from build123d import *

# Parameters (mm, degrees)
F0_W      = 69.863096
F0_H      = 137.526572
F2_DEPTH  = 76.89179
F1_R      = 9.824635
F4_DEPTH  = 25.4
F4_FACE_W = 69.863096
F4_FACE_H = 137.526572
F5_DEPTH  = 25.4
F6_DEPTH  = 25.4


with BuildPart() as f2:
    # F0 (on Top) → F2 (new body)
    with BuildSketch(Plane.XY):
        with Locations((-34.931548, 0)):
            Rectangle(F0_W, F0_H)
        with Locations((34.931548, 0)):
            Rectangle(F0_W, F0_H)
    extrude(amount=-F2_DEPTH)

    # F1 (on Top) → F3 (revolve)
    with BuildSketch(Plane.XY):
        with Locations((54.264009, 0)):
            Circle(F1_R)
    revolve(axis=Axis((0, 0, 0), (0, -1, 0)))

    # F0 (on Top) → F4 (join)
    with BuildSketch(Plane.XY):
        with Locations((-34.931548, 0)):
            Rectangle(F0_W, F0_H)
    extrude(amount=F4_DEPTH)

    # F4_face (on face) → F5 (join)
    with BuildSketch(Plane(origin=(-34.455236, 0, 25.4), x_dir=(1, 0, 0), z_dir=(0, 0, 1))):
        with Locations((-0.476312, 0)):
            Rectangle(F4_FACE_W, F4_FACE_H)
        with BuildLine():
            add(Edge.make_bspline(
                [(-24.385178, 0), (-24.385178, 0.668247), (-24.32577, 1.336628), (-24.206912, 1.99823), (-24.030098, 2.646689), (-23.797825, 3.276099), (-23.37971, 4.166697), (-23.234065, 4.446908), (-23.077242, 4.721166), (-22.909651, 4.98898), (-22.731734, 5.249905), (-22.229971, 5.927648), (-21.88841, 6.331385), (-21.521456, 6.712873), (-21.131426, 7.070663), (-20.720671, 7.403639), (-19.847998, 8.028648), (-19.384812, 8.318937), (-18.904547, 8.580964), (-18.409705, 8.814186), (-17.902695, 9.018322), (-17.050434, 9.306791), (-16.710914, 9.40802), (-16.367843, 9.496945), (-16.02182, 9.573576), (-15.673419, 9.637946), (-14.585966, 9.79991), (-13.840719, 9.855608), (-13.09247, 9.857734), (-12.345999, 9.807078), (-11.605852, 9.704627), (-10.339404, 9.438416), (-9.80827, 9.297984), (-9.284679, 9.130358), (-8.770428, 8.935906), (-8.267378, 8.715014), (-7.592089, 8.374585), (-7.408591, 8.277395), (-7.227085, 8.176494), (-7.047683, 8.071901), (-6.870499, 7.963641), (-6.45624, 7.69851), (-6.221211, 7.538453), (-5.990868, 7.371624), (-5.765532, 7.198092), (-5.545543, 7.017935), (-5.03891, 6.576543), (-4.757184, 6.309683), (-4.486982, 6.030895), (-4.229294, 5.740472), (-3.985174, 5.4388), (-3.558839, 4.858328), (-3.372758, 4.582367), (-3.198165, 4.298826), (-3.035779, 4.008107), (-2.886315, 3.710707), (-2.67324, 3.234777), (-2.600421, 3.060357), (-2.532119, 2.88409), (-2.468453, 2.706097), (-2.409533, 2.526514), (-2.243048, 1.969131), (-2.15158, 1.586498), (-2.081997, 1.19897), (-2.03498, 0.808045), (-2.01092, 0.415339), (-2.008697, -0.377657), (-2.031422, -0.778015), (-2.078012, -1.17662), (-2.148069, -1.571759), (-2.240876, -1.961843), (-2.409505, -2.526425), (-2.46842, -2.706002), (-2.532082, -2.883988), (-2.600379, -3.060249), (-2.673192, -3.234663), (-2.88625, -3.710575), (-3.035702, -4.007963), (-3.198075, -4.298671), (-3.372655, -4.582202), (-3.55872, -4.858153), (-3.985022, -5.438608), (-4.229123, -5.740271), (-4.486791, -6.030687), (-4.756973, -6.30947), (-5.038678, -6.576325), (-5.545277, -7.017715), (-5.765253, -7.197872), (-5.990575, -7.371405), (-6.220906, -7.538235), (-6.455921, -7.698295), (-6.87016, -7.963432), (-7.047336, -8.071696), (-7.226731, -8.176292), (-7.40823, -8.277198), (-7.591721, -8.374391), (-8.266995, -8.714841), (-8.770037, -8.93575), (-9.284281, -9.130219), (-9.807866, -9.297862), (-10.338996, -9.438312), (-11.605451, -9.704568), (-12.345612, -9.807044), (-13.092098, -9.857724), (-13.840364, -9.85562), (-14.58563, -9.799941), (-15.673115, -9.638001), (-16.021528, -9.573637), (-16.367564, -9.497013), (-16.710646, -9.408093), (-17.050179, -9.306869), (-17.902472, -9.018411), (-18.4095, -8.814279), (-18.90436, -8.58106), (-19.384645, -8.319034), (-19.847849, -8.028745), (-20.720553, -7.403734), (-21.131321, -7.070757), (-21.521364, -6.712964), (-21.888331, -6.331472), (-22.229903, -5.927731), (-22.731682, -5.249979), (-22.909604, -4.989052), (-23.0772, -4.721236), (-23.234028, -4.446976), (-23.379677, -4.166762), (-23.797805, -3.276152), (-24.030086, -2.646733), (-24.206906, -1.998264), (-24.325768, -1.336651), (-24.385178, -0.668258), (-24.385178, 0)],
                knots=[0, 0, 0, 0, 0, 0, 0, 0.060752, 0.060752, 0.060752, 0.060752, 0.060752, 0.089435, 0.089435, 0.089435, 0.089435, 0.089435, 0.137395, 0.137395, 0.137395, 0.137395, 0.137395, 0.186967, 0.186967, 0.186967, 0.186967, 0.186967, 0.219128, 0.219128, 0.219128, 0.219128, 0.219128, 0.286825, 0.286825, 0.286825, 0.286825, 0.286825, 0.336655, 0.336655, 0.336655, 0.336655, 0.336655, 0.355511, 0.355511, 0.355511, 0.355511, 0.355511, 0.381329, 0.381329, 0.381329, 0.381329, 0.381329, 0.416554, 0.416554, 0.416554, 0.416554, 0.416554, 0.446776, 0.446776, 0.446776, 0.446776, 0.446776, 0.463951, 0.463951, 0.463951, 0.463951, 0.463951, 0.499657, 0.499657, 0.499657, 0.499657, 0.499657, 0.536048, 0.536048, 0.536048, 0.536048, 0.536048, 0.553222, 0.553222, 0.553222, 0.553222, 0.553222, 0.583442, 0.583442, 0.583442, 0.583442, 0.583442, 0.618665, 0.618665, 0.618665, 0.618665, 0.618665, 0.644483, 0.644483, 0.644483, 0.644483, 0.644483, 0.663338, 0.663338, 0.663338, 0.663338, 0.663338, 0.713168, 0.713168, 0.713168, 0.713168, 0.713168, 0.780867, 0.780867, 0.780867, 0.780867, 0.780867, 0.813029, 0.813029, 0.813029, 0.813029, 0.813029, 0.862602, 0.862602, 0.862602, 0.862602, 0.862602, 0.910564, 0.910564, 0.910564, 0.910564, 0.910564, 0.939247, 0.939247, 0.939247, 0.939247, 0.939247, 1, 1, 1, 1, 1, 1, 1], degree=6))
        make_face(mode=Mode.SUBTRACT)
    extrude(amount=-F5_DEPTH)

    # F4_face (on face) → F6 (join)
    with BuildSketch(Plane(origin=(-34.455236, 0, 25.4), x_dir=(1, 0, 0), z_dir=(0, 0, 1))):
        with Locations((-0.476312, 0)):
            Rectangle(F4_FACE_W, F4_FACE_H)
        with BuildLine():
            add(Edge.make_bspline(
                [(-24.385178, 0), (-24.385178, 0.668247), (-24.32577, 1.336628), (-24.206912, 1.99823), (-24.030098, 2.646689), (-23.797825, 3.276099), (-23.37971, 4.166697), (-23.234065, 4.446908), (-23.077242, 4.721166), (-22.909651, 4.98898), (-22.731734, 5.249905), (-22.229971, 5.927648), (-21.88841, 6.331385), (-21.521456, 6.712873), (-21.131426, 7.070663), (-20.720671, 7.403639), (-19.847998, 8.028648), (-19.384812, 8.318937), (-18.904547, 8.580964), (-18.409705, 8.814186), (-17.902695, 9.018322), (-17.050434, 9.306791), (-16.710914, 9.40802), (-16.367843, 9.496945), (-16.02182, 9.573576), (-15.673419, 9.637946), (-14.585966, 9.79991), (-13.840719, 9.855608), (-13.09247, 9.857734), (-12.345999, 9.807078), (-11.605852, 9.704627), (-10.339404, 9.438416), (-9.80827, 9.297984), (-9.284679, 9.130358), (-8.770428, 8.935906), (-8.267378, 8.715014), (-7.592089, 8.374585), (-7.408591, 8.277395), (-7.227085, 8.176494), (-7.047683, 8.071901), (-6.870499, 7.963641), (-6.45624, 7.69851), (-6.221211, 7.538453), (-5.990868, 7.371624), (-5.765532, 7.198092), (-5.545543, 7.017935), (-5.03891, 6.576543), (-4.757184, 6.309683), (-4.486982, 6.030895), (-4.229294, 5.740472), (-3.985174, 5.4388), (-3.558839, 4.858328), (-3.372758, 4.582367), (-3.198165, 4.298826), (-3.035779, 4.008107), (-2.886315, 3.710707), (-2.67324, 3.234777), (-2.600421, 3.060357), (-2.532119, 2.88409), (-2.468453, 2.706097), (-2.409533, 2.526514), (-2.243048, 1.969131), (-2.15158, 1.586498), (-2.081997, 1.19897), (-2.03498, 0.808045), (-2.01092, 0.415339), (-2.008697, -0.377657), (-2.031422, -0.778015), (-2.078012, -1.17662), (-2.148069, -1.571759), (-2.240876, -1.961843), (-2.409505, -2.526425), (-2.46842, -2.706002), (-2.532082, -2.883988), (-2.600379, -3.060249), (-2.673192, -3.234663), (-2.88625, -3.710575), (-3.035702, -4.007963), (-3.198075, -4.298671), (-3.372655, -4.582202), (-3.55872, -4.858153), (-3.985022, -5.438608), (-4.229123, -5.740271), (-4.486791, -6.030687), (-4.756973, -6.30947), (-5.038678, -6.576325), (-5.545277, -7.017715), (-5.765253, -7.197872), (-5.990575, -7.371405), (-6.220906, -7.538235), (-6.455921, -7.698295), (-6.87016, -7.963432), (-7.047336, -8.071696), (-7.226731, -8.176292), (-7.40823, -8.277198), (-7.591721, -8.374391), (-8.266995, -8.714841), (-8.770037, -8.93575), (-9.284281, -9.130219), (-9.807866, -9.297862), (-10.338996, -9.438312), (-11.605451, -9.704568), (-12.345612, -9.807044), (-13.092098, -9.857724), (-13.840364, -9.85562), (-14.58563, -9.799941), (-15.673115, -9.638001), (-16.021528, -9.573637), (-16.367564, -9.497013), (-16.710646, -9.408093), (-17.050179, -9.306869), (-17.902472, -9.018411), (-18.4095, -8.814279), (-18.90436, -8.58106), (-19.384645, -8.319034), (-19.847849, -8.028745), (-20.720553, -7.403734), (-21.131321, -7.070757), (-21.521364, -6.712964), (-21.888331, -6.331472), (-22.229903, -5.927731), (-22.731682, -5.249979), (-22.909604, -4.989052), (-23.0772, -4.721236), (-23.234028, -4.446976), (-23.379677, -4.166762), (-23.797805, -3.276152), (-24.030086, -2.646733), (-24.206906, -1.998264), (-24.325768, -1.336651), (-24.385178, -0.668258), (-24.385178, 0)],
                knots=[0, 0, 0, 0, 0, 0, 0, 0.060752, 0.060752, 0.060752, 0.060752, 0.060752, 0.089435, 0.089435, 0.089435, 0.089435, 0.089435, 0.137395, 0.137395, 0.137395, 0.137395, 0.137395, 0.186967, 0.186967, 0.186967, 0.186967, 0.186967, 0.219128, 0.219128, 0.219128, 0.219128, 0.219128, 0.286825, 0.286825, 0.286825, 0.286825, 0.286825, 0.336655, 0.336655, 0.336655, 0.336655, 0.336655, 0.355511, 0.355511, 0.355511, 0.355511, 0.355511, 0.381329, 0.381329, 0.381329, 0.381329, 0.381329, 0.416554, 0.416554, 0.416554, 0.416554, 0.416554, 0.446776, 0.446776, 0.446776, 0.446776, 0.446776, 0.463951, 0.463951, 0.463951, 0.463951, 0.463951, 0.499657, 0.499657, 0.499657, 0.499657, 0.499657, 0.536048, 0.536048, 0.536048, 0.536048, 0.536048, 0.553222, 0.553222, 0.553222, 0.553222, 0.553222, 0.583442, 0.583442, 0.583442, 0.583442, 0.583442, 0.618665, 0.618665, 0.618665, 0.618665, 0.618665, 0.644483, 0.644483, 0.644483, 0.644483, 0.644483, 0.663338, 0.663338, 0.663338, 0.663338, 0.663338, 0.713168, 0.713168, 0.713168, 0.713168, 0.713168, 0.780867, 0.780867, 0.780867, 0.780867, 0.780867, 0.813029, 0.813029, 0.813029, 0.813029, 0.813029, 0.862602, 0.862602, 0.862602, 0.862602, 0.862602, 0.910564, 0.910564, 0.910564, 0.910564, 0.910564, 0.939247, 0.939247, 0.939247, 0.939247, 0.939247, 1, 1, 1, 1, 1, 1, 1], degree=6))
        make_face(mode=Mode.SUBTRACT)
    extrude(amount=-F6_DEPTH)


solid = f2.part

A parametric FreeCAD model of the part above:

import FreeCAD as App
import Part
import Sketcher

V = App.Vector
Q = App.Units.Quantity


def add_polygon(sketch, points):
    """Adds a closed chain of lines whose ends are joined by coincident constraints."""
    first, n = sketch.GeometryCount, len(points)
    for a, b in zip(points, points[1:] + points[:1]):
        sketch.addGeometry(Part.LineSegment(App.Vector(*a, 0), App.Vector(*b, 0)), False)
    for i in range(n):
        sketch.addConstraint(Sketcher.Constraint("Coincident", first + i, 2, first + (i + 1) % n, 1))

doc = App.newDocument("Part")
body = doc.addObject("PartDesign::Body", "Body")

# Sketch on XY plane
sketch1 = body.newObject("Sketcher::SketchObject", "Sketch")
sketch1.AttachmentSupport = (doc.getObject("XY_Plane"), [""])
sketch1.MapMode = "FlatFace"
add_polygon(sketch1, [(-69.863096, 68.763286), (-69.863096, -68.763286), (69.863096, -68.763286), (69.863096, 68.763286)])  # lines 0-3
sketch1.addConstraint([
    Sketcher.Constraint("Vertical", 0),
    Sketcher.Constraint("Horizontal", 1),
    Sketcher.Constraint("Vertical", 2),
    Sketcher.Constraint("Horizontal", 3),
    Sketcher.Constraint("Symmetric", 0, 2, 2, 2, -1, 1),
    Sketcher.Constraint("DistanceX", 1, 1, 1, 2, 139.726192),
    Sketcher.Constraint("DistanceY", 0, 2, 0, 1, 137.526572),
])
pad1 = body.newObject("PartDesign::Pad", "Pad")
pad1.Profile = sketch1
pad1.Length = 76.89179
pad1.Reversed = True

# Sketch on XY plane
sketch2 = body.newObject("Sketcher::SketchObject", "Sketch001")
sketch2.AttachmentSupport = (doc.getObject("XY_Plane"), [""])
sketch2.MapMode = "FlatFace"
sketch2.addGeometry(Part.Circle(V(54.264009, 0, 0), V(0, 0, 1), 9.824635), False)
sketch2.addConstraint([
    Sketcher.Constraint("PointOnObject", 0, 3, -1),
    Sketcher.Constraint("Diameter", 0, 19.64927),
    Sketcher.Constraint("DistanceX", -1, 1, 0, 3, 54.264009),
])
revolution = body.newObject("PartDesign::Revolution", "Revolution")
revolution.Profile = sketch2
revolution.ReferenceAxis = (sketch2, ["V_Axis"])
revolution.Angle = 360

# Sketch on XY plane
sketch3 = body.newObject("Sketcher::SketchObject", "Sketch002")
sketch3.AttachmentSupport = (doc.getObject("XY_Plane"), [""])
sketch3.MapMode = "FlatFace"
add_polygon(sketch3, [(-69.863096, 68.763286), (-69.863096, -68.763286), (0, -68.763286), (0, 68.763286)])  # lines 0-3
sketch3.addConstraint([
    Sketcher.Constraint("Vertical", 0),
    Sketcher.Constraint("Horizontal", 1),
    Sketcher.Constraint("Vertical", 2),
    Sketcher.Constraint("Horizontal", 3),
    Sketcher.Constraint("Symmetric", 1, 2, 2, 2, -1, 1),
    Sketcher.Constraint("DistanceY", 0, 2, 0, 1, 137.526572),
    Sketcher.Constraint("DistanceX", 1, 1, 1, 2, 69.863096),
])
pad2 = body.newObject("PartDesign::Pad", "Pad001")
pad2.Profile = sketch3
pad2.Length = Q("1 in")

# Sketch on XY plane
sketch4 = body.newObject("Sketcher::SketchObject", "Sketch003")
sketch4.AttachmentSupport = (doc.getObject("XY_Plane"), [""])
sketch4.MapMode = "FlatFace"
sketch4.AttachmentOffset = App.Placement(V(0, 0, 1 * 25.4), App.Rotation())
add_polygon(sketch4, [(-69.863096, 68.763286), (-69.863096, -68.763286), (0, -68.763286), (0, 68.763286)])  # lines 0-3
sketch4.addGeometry(Part.BSplineCurve([V(-58.840414, 0, 0), V(-58.840414, 0.668247, 0), V(-58.781006, 1.336628, 0), V(-58.662148, 1.99823, 0), V(-58.485334, 2.646689, 0), V(-58.253061, 3.276099, 0), V(-57.834946, 4.166697, 0), V(-57.689301, 4.446908, 0), V(-57.532478, 4.721166, 0), V(-57.364887, 4.98898, 0), V(-57.18697, 5.249905, 0), V(-56.685207, 5.927648, 0), V(-56.343646, 6.331385, 0), V(-55.976692, 6.712873, 0), V(-55.586662, 7.070663, 0), V(-55.175907, 7.403639, 0), V(-54.303234, 8.028648, 0), V(-53.840048, 8.318937, 0), V(-53.359783, 8.580964, 0), V(-52.864941, 8.814186, 0), V(-52.357931, 9.018322, 0), V(-51.50567, 9.306791, 0), V(-51.16615, 9.40802, 0), V(-50.823079, 9.496945, 0), V(-50.477056, 9.573576, 0), V(-50.128655, 9.637946, 0), V(-49.041202, 9.79991, 0), V(-48.295955, 9.855608, 0), V(-47.547706, 9.857734, 0), V(-46.801235, 9.807078, 0), V(-46.061088, 9.704627, 0), V(-44.79464, 9.438416, 0), V(-44.263506, 9.297984, 0), V(-43.739915, 9.130358, 0), V(-43.225664, 8.935906, 0), V(-42.722614, 8.715014, 0), V(-42.047325, 8.374585, 0), V(-41.863827, 8.277395, 0), V(-41.682321, 8.176494, 0), V(-41.502919, 8.071901, 0), V(-41.325735, 7.963641, 0), V(-40.911476, 7.69851, 0), V(-40.676447, 7.538453, 0), V(-40.446104, 7.371624, 0), V(-40.220768, 7.198092, 0), V(-40.000779, 7.017935, 0), V(-39.494146, 6.576543, 0), V(-39.21242, 6.309683, 0), V(-38.942218, 6.030895, 0), V(-38.68453, 5.740472, 0), V(-38.44041, 5.4388, 0), V(-38.014075, 4.858328, 0), V(-37.827994, 4.582367, 0), V(-37.653401, 4.298826, 0), V(-37.491015, 4.008107, 0), V(-37.341551, 3.710707, 0), V(-37.128476, 3.234777, 0), V(-37.055657, 3.060357, 0), V(-36.987355, 2.88409, 0), V(-36.923689, 2.706097, 0), V(-36.864769, 2.526514, 0), V(-36.698284, 1.969131, 0), V(-36.606816, 1.586498, 0), V(-36.537233, 1.19897, 0), V(-36.490216, 0.808045, 0), V(-36.466156, 0.415339, 0), V(-36.463933, -0.377657, 0), V(-36.486658, -0.778015, 0), V(-36.533248, -1.17662, 0), V(-36.603305, -1.571759, 0), V(-36.696112, -1.961843, 0), V(-36.864741, -2.526425, 0), V(-36.923656, -2.706002, 0), V(-36.987318, -2.883988, 0), V(-37.055615, -3.060249, 0), V(-37.128428, -3.234663, 0), V(-37.341486, -3.710575, 0), V(-37.490938, -4.007963, 0), V(-37.653311, -4.298671, 0), V(-37.827891, -4.582202, 0), V(-38.013956, -4.858153, 0), V(-38.440258, -5.438608, 0), V(-38.684359, -5.740271, 0), V(-38.942027, -6.030687, 0), V(-39.212209, -6.30947, 0), V(-39.493914, -6.576325, 0), V(-40.000513, -7.017715, 0), V(-40.220489, -7.197872, 0), V(-40.445811, -7.371405, 0), V(-40.676142, -7.538235, 0), V(-40.911157, -7.698295, 0), V(-41.325396, -7.963432, 0), V(-41.502572, -8.071696, 0), V(-41.681967, -8.176292, 0), V(-41.863466, -8.277198, 0), V(-42.046957, -8.374391, 0), V(-42.722231, -8.714841, 0), V(-43.225273, -8.93575, 0), V(-43.739517, -9.130219, 0), V(-44.263102, -9.297862, 0), V(-44.794232, -9.438312, 0), V(-46.060687, -9.704568, 0), V(-46.800848, -9.807044, 0), V(-47.547334, -9.857724, 0), V(-48.2956, -9.85562, 0), V(-49.040866, -9.799941, 0), V(-50.128351, -9.638001, 0), V(-50.476764, -9.573637, 0), V(-50.8228, -9.497013, 0), V(-51.165882, -9.408093, 0), V(-51.505415, -9.306869, 0), V(-52.357708, -9.018411, 0), V(-52.864736, -8.814279, 0), V(-53.359596, -8.58106, 0), V(-53.839881, -8.319034, 0), V(-54.303085, -8.028745, 0), V(-55.175789, -7.403734, 0), V(-55.586557, -7.070757, 0), V(-55.9766, -6.712964, 0), V(-56.343567, -6.331472, 0), V(-56.685139, -5.927731, 0), V(-57.186918, -5.249979, 0), V(-57.36484, -4.989052, 0), V(-57.532436, -4.721236, 0), V(-57.689264, -4.446976, 0), V(-57.834913, -4.166762, 0), V(-58.253041, -3.276152, 0), V(-58.485322, -2.646733, 0), V(-58.662142, -1.998264, 0), V(-58.781004, -1.336651, 0), V(-58.840414, -0.668258, 0), V(-58.840414, 0, 0)], [7, 5, 5, 5, 5, 5, 5, 5, 5, 5, 5, 5, 5, 5, 5, 5, 5, 5, 5, 5, 5, 5, 5, 5, 5, 5, 7], [0, 0.060752, 0.089435, 0.137395, 0.186967, 0.219128, 0.286825, 0.336655, 0.355511, 0.381329, 0.416554, 0.446776, 0.463951, 0.499657, 0.536048, 0.553222, 0.583442, 0.618665, 0.644483, 0.663338, 0.713168, 0.780867, 0.813029, 0.862602, 0.910564, 0.939247, 1], False, 6, [1, 1, 1, 1, 1, 1, 1, 1, 1, 1, 1, 1, 1, 1, 1, 1, 1, 1, 1, 1, 1, 1, 1, 1, 1, 1, 1, 1, 1, 1, 1, 1, 1, 1, 1, 1, 1, 1, 1, 1, 1, 1, 1, 1, 1, 1, 1, 1, 1, 1, 1, 1, 1, 1, 1, 1, 1, 1, 1, 1, 1, 1, 1, 1, 1, 1, 1, 1, 1, 1, 1, 1, 1, 1, 1, 1, 1, 1, 1, 1, 1, 1, 1, 1, 1, 1, 1, 1, 1, 1, 1, 1, 1, 1, 1, 1, 1, 1, 1, 1, 1, 1, 1, 1, 1, 1, 1, 1, 1, 1, 1, 1, 1, 1, 1, 1, 1, 1, 1, 1, 1, 1, 1, 1, 1, 1, 1, 1, 1, 1, 1, 1], False), False)  # 4
sketch4.addConstraint([
    Sketcher.Constraint("Block", 4),
    Sketcher.Constraint("Vertical", 0),
    Sketcher.Constraint("Horizontal", 1),
    Sketcher.Constraint("Vertical", 2),
    Sketcher.Constraint("Horizontal", 3),
    Sketcher.Constraint("Symmetric", 1, 2, 2, 2, -1, 1),
    Sketcher.Constraint("DistanceY", 0, 2, 0, 1, 137.526572),
    Sketcher.Constraint("DistanceX", 1, 1, 1, 2, 69.863096),
])
pad3 = body.newObject("PartDesign::Pad", "Pad002")
pad3.Profile = sketch4
pad3.Length = Q("1 in")
pad3.Reversed = True

# Sketch on XY plane
sketch5 = body.newObject("Sketcher::SketchObject", "Sketch004")
sketch5.AttachmentSupport = (doc.getObject("XY_Plane"), [""])
sketch5.MapMode = "FlatFace"
sketch5.AttachmentOffset = App.Placement(V(0, 0, 1 * 25.4), App.Rotation())
add_polygon(sketch5, [(-69.863096, 68.763286), (-69.863096, -68.763286), (0, -68.763286), (0, 68.763286)])  # lines 0-3
sketch5.addGeometry(Part.BSplineCurve([V(-58.840414, 0, 0), V(-58.840414, 0.668247, 0), V(-58.781006, 1.336628, 0), V(-58.662148, 1.99823, 0), V(-58.485334, 2.646689, 0), V(-58.253061, 3.276099, 0), V(-57.834946, 4.166697, 0), V(-57.689301, 4.446908, 0), V(-57.532478, 4.721166, 0), V(-57.364887, 4.98898, 0), V(-57.18697, 5.249905, 0), V(-56.685207, 5.927648, 0), V(-56.343646, 6.331385, 0), V(-55.976692, 6.712873, 0), V(-55.586662, 7.070663, 0), V(-55.175907, 7.403639, 0), V(-54.303234, 8.028648, 0), V(-53.840048, 8.318937, 0), V(-53.359783, 8.580964, 0), V(-52.864941, 8.814186, 0), V(-52.357931, 9.018322, 0), V(-51.50567, 9.306791, 0), V(-51.16615, 9.40802, 0), V(-50.823079, 9.496945, 0), V(-50.477056, 9.573576, 0), V(-50.128655, 9.637946, 0), V(-49.041202, 9.79991, 0), V(-48.295955, 9.855608, 0), V(-47.547706, 9.857734, 0), V(-46.801235, 9.807078, 0), V(-46.061088, 9.704627, 0), V(-44.79464, 9.438416, 0), V(-44.263506, 9.297984, 0), V(-43.739915, 9.130358, 0), V(-43.225664, 8.935906, 0), V(-42.722614, 8.715014, 0), V(-42.047325, 8.374585, 0), V(-41.863827, 8.277395, 0), V(-41.682321, 8.176494, 0), V(-41.502919, 8.071901, 0), V(-41.325735, 7.963641, 0), V(-40.911476, 7.69851, 0), V(-40.676447, 7.538453, 0), V(-40.446104, 7.371624, 0), V(-40.220768, 7.198092, 0), V(-40.000779, 7.017935, 0), V(-39.494146, 6.576543, 0), V(-39.21242, 6.309683, 0), V(-38.942218, 6.030895, 0), V(-38.68453, 5.740472, 0), V(-38.44041, 5.4388, 0), V(-38.014075, 4.858328, 0), V(-37.827994, 4.582367, 0), V(-37.653401, 4.298826, 0), V(-37.491015, 4.008107, 0), V(-37.341551, 3.710707, 0), V(-37.128476, 3.234777, 0), V(-37.055657, 3.060357, 0), V(-36.987355, 2.88409, 0), V(-36.923689, 2.706097, 0), V(-36.864769, 2.526514, 0), V(-36.698284, 1.969131, 0), V(-36.606816, 1.586498, 0), V(-36.537233, 1.19897, 0), V(-36.490216, 0.808045, 0), V(-36.466156, 0.415339, 0), V(-36.463933, -0.377657, 0), V(-36.486658, -0.778015, 0), V(-36.533248, -1.17662, 0), V(-36.603305, -1.571759, 0), V(-36.696112, -1.961843, 0), V(-36.864741, -2.526425, 0), V(-36.923656, -2.706002, 0), V(-36.987318, -2.883988, 0), V(-37.055615, -3.060249, 0), V(-37.128428, -3.234663, 0), V(-37.341486, -3.710575, 0), V(-37.490938, -4.007963, 0), V(-37.653311, -4.298671, 0), V(-37.827891, -4.582202, 0), V(-38.013956, -4.858153, 0), V(-38.440258, -5.438608, 0), V(-38.684359, -5.740271, 0), V(-38.942027, -6.030687, 0), V(-39.212209, -6.30947, 0), V(-39.493914, -6.576325, 0), V(-40.000513, -7.017715, 0), V(-40.220489, -7.197872, 0), V(-40.445811, -7.371405, 0), V(-40.676142, -7.538235, 0), V(-40.911157, -7.698295, 0), V(-41.325396, -7.963432, 0), V(-41.502572, -8.071696, 0), V(-41.681967, -8.176292, 0), V(-41.863466, -8.277198, 0), V(-42.046957, -8.374391, 0), V(-42.722231, -8.714841, 0), V(-43.225273, -8.93575, 0), V(-43.739517, -9.130219, 0), V(-44.263102, -9.297862, 0), V(-44.794232, -9.438312, 0), V(-46.060687, -9.704568, 0), V(-46.800848, -9.807044, 0), V(-47.547334, -9.857724, 0), V(-48.2956, -9.85562, 0), V(-49.040866, -9.799941, 0), V(-50.128351, -9.638001, 0), V(-50.476764, -9.573637, 0), V(-50.8228, -9.497013, 0), V(-51.165882, -9.408093, 0), V(-51.505415, -9.306869, 0), V(-52.357708, -9.018411, 0), V(-52.864736, -8.814279, 0), V(-53.359596, -8.58106, 0), V(-53.839881, -8.319034, 0), V(-54.303085, -8.028745, 0), V(-55.175789, -7.403734, 0), V(-55.586557, -7.070757, 0), V(-55.9766, -6.712964, 0), V(-56.343567, -6.331472, 0), V(-56.685139, -5.927731, 0), V(-57.186918, -5.249979, 0), V(-57.36484, -4.989052, 0), V(-57.532436, -4.721236, 0), V(-57.689264, -4.446976, 0), V(-57.834913, -4.166762, 0), V(-58.253041, -3.276152, 0), V(-58.485322, -2.646733, 0), V(-58.662142, -1.998264, 0), V(-58.781004, -1.336651, 0), V(-58.840414, -0.668258, 0), V(-58.840414, 0, 0)], [7, 5, 5, 5, 5, 5, 5, 5, 5, 5, 5, 5, 5, 5, 5, 5, 5, 5, 5, 5, 5, 5, 5, 5, 5, 5, 7], [0, 0.060752, 0.089435, 0.137395, 0.186967, 0.219128, 0.286825, 0.336655, 0.355511, 0.381329, 0.416554, 0.446776, 0.463951, 0.499657, 0.536048, 0.553222, 0.583442, 0.618665, 0.644483, 0.663338, 0.713168, 0.780867, 0.813029, 0.862602, 0.910564, 0.939247, 1], False, 6, [1, 1, 1, 1, 1, 1, 1, 1, 1, 1, 1, 1, 1, 1, 1, 1, 1, 1, 1, 1, 1, 1, 1, 1, 1, 1, 1, 1, 1, 1, 1, 1, 1, 1, 1, 1, 1, 1, 1, 1, 1, 1, 1, 1, 1, 1, 1, 1, 1, 1, 1, 1, 1, 1, 1, 1, 1, 1, 1, 1, 1, 1, 1, 1, 1, 1, 1, 1, 1, 1, 1, 1, 1, 1, 1, 1, 1, 1, 1, 1, 1, 1, 1, 1, 1, 1, 1, 1, 1, 1, 1, 1, 1, 1, 1, 1, 1, 1, 1, 1, 1, 1, 1, 1, 1, 1, 1, 1, 1, 1, 1, 1, 1, 1, 1, 1, 1, 1, 1, 1, 1, 1, 1, 1, 1, 1, 1, 1, 1, 1, 1, 1], False), False)  # 4
sketch5.addConstraint([
    Sketcher.Constraint("Block", 4),
    Sketcher.Constraint("Vertical", 0),
    Sketcher.Constraint("Horizontal", 1),
    Sketcher.Constraint("Vertical", 2),
    Sketcher.Constraint("Horizontal", 3),
    Sketcher.Constraint("Symmetric", 1, 2, 2, 2, -1, 1),
    Sketcher.Constraint("DistanceY", 0, 2, 0, 1, 137.526572),
    Sketcher.Constraint("DistanceX", 1, 1, 1, 2, 69.863096),
])
pad4 = body.newObject("PartDesign::Pad", "Pad003")
pad4.Profile = sketch5
pad4.Length = Q("1 in")
pad4.Reversed = True

doc.recompute()
